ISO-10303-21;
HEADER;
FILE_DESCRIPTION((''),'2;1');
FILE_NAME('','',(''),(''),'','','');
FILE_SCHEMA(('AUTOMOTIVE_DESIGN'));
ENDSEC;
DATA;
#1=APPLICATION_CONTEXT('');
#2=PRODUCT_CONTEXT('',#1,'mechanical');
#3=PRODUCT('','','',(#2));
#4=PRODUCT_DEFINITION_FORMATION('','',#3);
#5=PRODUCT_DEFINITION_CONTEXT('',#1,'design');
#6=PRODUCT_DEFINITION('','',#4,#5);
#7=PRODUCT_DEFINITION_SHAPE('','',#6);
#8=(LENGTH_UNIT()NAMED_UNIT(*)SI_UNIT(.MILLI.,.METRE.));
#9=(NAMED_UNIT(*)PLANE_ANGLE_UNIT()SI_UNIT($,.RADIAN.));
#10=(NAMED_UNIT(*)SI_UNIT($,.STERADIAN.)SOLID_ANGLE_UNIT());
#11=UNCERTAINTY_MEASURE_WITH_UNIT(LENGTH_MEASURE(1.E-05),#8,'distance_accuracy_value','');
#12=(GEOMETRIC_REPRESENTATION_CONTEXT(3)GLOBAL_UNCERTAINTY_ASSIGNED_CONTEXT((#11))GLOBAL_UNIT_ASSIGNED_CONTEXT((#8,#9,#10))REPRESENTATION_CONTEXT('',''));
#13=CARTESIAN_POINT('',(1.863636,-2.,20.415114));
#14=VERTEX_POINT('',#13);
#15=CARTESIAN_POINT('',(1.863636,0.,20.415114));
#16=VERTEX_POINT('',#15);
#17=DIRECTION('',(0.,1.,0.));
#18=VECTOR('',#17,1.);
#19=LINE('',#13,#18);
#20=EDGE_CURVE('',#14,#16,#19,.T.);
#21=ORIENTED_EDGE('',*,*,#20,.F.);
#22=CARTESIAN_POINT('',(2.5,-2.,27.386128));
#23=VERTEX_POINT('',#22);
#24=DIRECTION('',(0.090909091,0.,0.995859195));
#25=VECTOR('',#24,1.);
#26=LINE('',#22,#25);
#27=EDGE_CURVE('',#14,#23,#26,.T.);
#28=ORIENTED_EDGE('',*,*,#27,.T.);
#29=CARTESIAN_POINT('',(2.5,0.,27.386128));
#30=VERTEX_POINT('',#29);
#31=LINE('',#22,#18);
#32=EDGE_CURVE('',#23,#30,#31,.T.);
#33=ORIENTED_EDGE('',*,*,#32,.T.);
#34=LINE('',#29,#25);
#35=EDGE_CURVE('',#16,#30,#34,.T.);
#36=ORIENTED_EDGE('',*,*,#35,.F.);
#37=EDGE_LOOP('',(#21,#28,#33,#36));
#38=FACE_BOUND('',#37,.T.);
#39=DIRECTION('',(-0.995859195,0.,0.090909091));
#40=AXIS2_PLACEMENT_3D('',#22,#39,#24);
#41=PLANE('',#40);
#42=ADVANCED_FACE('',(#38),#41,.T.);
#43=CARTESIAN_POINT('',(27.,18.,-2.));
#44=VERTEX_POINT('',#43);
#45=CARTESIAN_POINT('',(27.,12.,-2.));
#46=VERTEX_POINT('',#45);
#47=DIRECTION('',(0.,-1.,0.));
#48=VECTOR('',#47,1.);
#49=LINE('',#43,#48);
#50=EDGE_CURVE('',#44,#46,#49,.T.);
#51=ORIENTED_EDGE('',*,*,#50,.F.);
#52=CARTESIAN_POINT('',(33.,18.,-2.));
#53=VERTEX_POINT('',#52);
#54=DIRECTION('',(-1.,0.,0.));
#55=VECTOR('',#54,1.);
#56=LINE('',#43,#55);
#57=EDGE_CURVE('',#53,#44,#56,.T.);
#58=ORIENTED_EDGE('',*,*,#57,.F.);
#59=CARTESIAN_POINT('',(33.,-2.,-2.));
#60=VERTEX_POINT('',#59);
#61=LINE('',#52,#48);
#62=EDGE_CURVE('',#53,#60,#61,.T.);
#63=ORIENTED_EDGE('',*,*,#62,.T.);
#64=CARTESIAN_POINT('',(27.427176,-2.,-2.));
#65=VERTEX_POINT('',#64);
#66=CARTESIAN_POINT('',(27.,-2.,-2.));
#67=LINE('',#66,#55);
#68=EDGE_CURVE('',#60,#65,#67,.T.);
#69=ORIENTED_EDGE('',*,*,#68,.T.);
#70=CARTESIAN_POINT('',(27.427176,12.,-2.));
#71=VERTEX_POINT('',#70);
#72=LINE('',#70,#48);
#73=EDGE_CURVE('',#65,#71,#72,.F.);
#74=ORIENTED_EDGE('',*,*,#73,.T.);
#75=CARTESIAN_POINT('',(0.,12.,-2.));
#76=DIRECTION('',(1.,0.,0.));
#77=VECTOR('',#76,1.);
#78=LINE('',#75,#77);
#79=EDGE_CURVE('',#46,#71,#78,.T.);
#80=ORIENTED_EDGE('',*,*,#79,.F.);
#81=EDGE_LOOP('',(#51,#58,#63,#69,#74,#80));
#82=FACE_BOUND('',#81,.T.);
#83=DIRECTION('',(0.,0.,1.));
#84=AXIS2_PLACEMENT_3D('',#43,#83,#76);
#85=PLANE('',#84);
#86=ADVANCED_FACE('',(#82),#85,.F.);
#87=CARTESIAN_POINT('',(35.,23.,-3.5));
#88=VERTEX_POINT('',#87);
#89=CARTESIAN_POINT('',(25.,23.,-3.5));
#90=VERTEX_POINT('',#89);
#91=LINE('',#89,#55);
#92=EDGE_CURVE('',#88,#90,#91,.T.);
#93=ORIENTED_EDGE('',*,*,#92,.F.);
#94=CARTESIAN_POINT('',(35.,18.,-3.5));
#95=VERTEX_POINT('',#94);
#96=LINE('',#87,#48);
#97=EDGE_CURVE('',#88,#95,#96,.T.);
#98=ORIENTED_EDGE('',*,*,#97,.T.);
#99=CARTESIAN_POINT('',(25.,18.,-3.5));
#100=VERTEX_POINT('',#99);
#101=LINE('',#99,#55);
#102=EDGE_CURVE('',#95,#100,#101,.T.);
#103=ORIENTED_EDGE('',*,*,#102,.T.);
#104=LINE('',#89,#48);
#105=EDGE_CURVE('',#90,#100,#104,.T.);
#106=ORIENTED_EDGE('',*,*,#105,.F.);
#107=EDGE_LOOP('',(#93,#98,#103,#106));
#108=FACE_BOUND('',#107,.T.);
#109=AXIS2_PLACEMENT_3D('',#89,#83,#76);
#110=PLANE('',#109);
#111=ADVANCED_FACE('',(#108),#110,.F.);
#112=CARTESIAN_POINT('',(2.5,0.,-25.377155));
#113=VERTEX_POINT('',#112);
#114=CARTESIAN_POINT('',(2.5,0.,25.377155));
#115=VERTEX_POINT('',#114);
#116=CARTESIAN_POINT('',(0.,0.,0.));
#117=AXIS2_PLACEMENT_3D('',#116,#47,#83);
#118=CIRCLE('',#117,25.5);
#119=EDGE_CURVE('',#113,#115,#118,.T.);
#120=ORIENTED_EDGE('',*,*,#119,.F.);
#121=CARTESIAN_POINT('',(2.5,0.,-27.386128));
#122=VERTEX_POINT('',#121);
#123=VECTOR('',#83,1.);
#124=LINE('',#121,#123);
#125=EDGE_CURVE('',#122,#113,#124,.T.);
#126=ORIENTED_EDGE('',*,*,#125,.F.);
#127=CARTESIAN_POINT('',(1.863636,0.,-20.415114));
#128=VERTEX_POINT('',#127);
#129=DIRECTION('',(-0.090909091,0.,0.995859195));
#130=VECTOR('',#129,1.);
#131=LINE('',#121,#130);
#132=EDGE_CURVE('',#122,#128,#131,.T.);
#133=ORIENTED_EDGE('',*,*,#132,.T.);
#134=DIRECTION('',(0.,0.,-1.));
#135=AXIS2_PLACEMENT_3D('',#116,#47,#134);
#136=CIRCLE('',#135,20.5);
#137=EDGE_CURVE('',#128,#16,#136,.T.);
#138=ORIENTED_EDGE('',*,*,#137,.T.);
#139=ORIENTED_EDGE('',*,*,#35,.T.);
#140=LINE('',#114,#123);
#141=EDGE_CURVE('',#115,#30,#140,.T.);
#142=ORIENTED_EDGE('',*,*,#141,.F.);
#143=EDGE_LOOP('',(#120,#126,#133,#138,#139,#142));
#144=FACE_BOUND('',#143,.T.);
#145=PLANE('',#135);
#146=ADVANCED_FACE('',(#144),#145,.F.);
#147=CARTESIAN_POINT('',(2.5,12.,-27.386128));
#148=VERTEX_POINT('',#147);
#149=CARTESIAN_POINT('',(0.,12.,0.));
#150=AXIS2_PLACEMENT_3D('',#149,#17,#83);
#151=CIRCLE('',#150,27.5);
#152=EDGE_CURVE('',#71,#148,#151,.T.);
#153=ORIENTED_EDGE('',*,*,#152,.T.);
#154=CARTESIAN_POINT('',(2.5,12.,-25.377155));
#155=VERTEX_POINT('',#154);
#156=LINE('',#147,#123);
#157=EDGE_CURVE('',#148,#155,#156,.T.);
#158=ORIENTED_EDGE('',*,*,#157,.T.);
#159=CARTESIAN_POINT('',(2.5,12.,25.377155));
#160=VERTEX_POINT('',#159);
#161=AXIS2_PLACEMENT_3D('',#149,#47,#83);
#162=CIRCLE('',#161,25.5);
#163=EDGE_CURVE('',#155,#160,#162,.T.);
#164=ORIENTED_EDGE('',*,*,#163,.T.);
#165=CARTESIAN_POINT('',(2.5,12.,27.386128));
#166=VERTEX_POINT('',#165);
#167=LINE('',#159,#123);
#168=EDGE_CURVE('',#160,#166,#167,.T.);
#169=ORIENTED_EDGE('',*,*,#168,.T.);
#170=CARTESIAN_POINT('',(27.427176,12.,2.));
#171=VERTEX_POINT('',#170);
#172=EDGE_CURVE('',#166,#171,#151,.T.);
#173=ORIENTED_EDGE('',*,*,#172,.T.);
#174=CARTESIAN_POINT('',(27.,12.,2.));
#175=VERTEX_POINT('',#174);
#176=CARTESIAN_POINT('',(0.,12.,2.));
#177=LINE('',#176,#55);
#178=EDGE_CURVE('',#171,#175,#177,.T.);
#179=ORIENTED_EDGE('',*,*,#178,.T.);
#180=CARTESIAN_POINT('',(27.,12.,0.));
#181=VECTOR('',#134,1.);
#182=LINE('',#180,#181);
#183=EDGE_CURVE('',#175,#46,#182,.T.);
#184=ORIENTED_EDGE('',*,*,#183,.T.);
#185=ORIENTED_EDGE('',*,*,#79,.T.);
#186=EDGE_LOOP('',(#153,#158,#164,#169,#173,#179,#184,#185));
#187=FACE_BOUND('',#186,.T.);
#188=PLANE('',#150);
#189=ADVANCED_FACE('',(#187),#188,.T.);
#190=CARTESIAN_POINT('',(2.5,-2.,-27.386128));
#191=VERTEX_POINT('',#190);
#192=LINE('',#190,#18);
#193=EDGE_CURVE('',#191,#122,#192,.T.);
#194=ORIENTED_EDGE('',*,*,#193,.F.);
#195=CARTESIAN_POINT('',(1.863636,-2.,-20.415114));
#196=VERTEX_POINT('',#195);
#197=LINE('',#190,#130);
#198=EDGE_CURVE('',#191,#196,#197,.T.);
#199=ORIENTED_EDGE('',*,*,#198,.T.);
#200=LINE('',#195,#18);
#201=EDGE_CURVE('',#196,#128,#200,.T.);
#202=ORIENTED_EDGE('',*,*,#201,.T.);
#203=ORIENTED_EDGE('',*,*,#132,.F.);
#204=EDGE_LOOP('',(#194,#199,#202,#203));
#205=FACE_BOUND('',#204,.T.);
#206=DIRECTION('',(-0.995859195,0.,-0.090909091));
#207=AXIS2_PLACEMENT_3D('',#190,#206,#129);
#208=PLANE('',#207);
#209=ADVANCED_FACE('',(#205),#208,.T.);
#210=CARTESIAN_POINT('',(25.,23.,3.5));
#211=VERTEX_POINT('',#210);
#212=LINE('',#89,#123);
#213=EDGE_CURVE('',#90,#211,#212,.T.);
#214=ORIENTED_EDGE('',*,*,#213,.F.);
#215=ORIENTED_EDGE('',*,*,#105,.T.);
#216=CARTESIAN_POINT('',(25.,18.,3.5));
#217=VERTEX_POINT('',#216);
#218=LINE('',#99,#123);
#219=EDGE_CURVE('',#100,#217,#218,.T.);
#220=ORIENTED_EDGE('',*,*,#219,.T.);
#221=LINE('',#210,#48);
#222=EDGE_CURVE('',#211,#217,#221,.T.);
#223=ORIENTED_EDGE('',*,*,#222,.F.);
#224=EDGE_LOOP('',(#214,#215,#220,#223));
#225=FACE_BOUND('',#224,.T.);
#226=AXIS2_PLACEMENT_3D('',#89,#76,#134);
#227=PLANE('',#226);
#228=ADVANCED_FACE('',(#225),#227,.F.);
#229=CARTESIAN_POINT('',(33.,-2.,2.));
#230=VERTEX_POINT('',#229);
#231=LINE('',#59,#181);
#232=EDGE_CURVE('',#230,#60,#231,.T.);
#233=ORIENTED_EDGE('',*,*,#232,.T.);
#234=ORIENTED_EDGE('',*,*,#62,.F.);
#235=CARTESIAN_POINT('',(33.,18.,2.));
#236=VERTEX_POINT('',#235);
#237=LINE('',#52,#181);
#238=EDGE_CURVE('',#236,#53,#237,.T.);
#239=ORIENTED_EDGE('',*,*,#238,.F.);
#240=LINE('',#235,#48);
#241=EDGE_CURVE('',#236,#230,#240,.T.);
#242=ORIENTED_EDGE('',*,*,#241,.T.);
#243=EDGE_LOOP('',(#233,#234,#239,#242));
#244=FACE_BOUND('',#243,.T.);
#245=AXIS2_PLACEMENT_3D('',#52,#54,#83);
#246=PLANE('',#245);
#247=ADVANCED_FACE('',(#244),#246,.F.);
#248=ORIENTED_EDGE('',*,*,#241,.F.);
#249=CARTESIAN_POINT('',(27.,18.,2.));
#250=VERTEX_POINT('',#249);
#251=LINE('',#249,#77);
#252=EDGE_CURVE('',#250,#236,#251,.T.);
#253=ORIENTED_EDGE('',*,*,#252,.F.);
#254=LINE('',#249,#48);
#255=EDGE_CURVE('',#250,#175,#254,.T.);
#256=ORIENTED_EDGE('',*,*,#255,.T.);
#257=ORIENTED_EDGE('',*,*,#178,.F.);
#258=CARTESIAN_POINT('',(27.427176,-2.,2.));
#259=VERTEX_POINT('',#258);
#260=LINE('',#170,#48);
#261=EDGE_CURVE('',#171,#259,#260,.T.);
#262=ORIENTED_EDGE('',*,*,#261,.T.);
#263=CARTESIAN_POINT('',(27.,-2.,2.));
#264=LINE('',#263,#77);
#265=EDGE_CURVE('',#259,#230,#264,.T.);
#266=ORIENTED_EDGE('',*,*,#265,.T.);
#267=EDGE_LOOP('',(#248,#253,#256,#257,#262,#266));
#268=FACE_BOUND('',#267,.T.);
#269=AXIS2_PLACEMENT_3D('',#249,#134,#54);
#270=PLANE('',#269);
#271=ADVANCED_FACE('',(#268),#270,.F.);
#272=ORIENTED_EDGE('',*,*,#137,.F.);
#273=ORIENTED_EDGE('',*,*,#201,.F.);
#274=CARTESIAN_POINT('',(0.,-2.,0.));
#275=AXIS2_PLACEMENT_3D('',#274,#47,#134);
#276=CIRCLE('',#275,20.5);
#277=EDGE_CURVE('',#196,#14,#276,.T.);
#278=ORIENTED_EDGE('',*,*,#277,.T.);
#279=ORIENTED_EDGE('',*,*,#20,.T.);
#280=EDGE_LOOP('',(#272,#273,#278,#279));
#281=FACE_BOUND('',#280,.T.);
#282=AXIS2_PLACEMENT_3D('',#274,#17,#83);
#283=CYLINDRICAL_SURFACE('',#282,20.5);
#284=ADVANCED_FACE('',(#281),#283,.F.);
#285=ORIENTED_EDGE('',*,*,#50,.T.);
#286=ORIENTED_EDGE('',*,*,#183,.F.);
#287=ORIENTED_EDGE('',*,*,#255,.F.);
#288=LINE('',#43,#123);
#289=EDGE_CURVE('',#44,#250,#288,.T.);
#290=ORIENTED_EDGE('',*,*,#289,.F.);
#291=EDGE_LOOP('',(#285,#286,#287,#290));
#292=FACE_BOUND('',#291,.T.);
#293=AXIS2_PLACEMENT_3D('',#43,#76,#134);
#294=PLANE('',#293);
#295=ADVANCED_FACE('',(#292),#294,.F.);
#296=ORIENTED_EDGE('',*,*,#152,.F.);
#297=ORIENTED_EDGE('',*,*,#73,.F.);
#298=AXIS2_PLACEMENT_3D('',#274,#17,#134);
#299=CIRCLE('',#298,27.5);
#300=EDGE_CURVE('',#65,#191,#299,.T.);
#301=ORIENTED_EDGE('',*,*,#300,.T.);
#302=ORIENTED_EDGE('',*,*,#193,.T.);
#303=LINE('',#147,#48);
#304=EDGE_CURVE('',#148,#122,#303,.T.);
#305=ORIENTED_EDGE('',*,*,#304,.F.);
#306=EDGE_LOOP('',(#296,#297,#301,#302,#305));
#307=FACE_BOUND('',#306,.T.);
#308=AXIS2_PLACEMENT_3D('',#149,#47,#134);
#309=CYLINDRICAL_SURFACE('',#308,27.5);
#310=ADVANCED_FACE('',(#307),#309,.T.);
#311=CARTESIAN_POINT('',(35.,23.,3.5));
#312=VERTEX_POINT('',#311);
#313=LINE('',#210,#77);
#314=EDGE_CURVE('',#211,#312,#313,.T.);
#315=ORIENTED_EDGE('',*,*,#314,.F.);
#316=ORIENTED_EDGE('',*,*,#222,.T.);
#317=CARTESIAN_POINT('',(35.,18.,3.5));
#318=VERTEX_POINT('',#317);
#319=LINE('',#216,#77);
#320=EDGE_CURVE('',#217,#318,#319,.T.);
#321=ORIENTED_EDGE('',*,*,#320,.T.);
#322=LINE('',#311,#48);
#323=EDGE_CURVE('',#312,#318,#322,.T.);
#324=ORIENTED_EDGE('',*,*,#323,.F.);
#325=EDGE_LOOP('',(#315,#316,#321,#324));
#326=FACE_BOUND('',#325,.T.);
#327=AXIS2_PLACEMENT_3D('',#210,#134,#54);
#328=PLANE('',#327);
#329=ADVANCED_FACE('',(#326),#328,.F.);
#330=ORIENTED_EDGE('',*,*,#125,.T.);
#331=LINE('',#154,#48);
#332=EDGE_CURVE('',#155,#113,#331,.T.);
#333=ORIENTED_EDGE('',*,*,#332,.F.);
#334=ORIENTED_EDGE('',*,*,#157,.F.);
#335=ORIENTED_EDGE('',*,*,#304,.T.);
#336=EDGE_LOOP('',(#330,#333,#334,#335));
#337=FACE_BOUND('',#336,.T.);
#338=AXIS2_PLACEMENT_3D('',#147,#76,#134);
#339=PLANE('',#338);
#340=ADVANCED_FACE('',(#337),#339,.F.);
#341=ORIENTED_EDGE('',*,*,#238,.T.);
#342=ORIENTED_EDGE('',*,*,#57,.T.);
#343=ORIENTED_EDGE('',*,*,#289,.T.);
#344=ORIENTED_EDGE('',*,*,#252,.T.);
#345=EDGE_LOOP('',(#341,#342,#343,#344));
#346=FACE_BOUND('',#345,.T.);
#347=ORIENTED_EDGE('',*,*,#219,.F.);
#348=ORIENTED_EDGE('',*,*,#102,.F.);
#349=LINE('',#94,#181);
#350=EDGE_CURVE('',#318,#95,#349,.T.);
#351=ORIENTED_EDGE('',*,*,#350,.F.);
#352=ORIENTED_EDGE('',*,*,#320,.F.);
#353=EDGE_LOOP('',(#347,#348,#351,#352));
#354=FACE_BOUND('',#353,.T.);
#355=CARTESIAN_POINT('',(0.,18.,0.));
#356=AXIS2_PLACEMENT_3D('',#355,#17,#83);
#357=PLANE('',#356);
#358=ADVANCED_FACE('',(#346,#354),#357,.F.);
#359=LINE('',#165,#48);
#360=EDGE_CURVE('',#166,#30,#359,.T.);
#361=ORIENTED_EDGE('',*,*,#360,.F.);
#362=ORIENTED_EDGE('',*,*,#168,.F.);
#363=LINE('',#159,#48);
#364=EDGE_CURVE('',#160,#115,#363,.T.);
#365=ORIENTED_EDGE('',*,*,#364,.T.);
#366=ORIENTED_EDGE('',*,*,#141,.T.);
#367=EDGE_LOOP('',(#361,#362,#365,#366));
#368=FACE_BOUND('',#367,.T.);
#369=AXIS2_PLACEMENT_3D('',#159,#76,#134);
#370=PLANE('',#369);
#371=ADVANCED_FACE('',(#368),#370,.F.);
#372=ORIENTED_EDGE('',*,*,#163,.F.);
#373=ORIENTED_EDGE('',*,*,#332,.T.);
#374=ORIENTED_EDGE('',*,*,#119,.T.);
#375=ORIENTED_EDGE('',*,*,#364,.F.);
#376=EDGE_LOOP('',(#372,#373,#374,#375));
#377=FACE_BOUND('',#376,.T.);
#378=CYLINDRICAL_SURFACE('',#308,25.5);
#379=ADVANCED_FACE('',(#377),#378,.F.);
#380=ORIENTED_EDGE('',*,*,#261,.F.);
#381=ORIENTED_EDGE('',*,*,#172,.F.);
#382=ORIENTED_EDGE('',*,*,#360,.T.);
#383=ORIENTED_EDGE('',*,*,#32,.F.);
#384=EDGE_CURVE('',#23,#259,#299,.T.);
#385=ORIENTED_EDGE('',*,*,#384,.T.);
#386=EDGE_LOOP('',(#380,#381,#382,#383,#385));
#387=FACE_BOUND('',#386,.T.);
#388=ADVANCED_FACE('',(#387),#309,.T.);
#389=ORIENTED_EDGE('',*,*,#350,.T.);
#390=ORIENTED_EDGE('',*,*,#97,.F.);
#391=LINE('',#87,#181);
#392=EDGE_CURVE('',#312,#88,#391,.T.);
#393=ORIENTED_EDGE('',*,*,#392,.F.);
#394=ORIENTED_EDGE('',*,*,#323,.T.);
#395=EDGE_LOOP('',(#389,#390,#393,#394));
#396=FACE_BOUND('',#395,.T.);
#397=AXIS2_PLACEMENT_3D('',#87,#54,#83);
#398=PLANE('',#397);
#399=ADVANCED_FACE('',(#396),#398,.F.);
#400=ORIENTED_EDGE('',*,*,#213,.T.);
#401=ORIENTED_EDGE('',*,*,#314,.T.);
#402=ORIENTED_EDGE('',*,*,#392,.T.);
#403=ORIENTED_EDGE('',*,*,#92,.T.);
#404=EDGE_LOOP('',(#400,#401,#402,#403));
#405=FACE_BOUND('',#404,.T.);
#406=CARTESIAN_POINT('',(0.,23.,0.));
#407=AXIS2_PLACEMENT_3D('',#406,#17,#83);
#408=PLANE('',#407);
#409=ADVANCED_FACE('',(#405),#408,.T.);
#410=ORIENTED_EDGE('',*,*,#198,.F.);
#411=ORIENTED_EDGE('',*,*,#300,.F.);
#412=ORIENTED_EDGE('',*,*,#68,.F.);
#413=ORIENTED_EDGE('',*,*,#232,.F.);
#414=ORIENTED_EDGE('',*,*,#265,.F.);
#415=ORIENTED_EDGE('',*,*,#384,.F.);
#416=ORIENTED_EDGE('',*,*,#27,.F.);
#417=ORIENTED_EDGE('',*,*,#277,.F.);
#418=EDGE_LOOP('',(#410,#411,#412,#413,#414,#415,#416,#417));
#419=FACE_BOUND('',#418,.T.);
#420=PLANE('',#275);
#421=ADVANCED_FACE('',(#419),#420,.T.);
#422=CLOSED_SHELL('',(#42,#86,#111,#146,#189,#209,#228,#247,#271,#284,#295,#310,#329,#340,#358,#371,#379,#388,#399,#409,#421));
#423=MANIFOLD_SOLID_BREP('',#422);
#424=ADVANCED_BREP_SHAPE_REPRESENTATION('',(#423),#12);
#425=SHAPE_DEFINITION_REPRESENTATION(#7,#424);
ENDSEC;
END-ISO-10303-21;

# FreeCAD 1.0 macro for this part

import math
import FreeCAD as App
import Part
import Sketcher
from FreeCAD import Vector
Q = App.Units.Quantity


def add_polygon(sketch, points):
    """Adds a closed chain of lines whose ends are joined by coincident constraints."""
    first, n = sketch.GeometryCount, len(points)
    for a, b in zip(points, points[1:] + points[:1]):
        sketch.addGeometry(Part.LineSegment(App.Vector(*a, 0), App.Vector(*b, 0)), False)
    for i in range(n):
        sketch.addConstraint(Sketcher.Constraint("Coincident", first + i, 2, first + (i + 1) % n, 1))

doc = App.newDocument("Part")
body = doc.addObject("PartDesign::Body", "Body")

# Sketch on XZ plane
sketch1 = body.newObject("Sketcher::SketchObject", "Sketch")
sketch1.AttachmentSupport = (doc.getObject("XZ_Plane"), [""])
sketch1.MapMode = "FlatFace"
sketch1.addGeometry([
    Part.LineSegment(Vector(2.5, -27.4, 0), Vector(2.5, -25.4, 0)),
    Part.ArcOfCircle(Part.Circle(Vector(0, 0, 0), Vector(0, 0, 1), 25.5), math.radians(-84), math.radians(84)),
    Part.LineSegment(Vector(2.5, 25.4, 0), Vector(2.5, 27.4, 0)),
    Part.ArcOfCircle(Part.Circle(Vector(0, 0, 0), Vector(0, 0, 1), 27.5), math.radians(-85), math.radians(85)),
], False)
sketch1.addConstraint([
    Sketcher.Constraint("Coincident", 0, 2, 1, 1),
    Sketcher.Constraint("Coincident", 1, 2, 2, 1),
    Sketcher.Constraint("Coincident", 2, 2, 3, 2),
    Sketcher.Constraint("Coincident", 3, 1, 0, 1),
    Sketcher.Constraint("Vertical", 0),
    Sketcher.Constraint("Vertical", 2),
    Sketcher.Constraint("Coincident", 1, 3, -1, 1),
    Sketcher.Constraint("Coincident", 3, 3, -1, 1),
    Sketcher.Constraint("Vertical", 0, 2, 1, 2),
    Sketcher.Constraint("Radius", 1, Q("25.5 mm")),
    Sketcher.Constraint("Radius", 3, Q("27.5 mm")),
    Sketcher.Constraint("DistanceX", -1, 1, 0, 2, Q("2.5 mm")),
])
pad1 = body.newObject("PartDesign::Pad", "Pad")
pad1.Profile = sketch1
pad1.Length = 12
pad1.Reversed = True

# Sketch on XZ plane
sketch2 = body.newObject("Sketcher::SketchObject", "Sketch001")
sketch2.AttachmentSupport = (doc.getObject("XZ_Plane"), [""])
sketch2.MapMode = "FlatFace"
sketch2.AttachmentOffset = App.Placement(Vector(0, 0, 2), App.Rotation())
sketch2.addGeometry([
    Part.LineSegment(Vector(2, -27, 0), Vector(2, -20, 0)),
    Part.ArcOfCircle(Part.Circle(Vector(0, 0, 0), Vector(0, 0, 1), 20), math.radians(-85), math.radians(85)),
    Part.LineSegment(Vector(2, 20, 0), Vector(2, 27, 0)),
    Part.ArcOfCircle(Part.Circle(Vector(0, 0, 0), Vector(0, 0, 1), 28), math.radians(-85), math.radians(85)),
], False)
sketch2.addConstraint([
    Sketcher.Constraint("Coincident", 0, 2, 1, 1),
    Sketcher.Constraint("Coincident", 1, 2, 2, 1),
    Sketcher.Constraint("Coincident", 2, 2, 3, 2),
    Sketcher.Constraint("Coincident", 3, 1, 0, 1),
    Sketcher.Constraint("Coincident", 1, 3, -1, 1),
    Sketcher.Constraint("Coincident", 3, 3, -1, 1),
    Sketcher.Constraint("Vertical", 0, 2, 1, 2),
    Sketcher.Constraint("Vertical", 2, 2, 3, 1),
    Sketcher.Constraint("Radius", 1, Q("20.5 mm")),
    Sketcher.Constraint("Radius", 3, Q("27.5 mm")),
    Sketcher.Constraint("DistanceX", -1, 1, 2, 2, Q("2.5 mm")),
    Sketcher.Constraint("DistanceY", 0, 2, 2, 2, Q("47.801241 mm")),
])
pad2 = body.newObject("PartDesign::Pad", "Pad001")
pad2.Profile = sketch2
pad2.Length = 2
pad2.Reversed = True

# Sketch on XZ plane
sketch3 = body.newObject("Sketcher::SketchObject", "Sketch002")
sketch3.AttachmentSupport = (doc.getObject("XZ_Plane"), [""])
sketch3.MapMode = "FlatFace"
sketch3.AttachmentOffset = App.Placement(Vector(0, 0, 2), App.Rotation())
add_polygon(sketch3, [(27, -2), (27, 2), (33, 2), (33, -2)])  # lines 0-3
sketch3.addConstraint([
    Sketcher.Constraint("Vertical", 0),
    Sketcher.Constraint("Horizontal", 1),
    Sketcher.Constraint("Vertical", 2),
    Sketcher.Constraint("Horizontal", 3),
    Sketcher.Constraint("DistanceX", 1, 1, 1, 2, Q("6 mm")),
    Sketcher.Constraint("DistanceY", 0, 1, 0, 2, Q("4 mm")),
    Sketcher.Constraint("DistanceX", -1, 1, 0, 2, Q("27 mm")),
    Sketcher.Constraint("DistanceY", -1, 1, 0, 2, Q("2 mm")),
])
pad3 = body.newObject("PartDesign::Pad", "Pad002")
pad3.Profile = sketch3
pad3.Length = 20
pad3.Reversed = True

# Sketch on XZ plane
sketch4 = body.newObject("Sketcher::SketchObject", "Sketch003")
sketch4.AttachmentSupport = (doc.getObject("XZ_Plane"), [""])
sketch4.MapMode = "FlatFace"
sketch4.AttachmentOffset = App.Placement(Vector(0, 0, -18), App.Rotation())
add_polygon(sketch4, [(25, -4), (25, 4), (35, 4), (35, -4)])  # lines 0-3
sketch4.addConstraint([
    Sketcher.Constraint("Vertical", 0),
    Sketcher.Constraint("Horizontal", 1),
    Sketcher.Constraint("Vertical", 2),
    Sketcher.Constraint("Horizontal", 3),
    Sketcher.Constraint("DistanceX", 1, 1, 1, 2, Q("10 mm")),
    Sketcher.Constraint("DistanceY", 0, 1, 0, 2, Q("7 mm")),
    Sketcher.Constraint("DistanceX", -1, 1, 0, 2, Q("25 mm")),
    Sketcher.Constraint("DistanceY", -1, 1, 0, 2, Q("3.5 mm")),
])
pad4 = body.newObject("PartDesign::Pad", "Pad003")
pad4.Profile = sketch4
pad4.Length = 5
pad4.Reversed = True

doc.recompute()
